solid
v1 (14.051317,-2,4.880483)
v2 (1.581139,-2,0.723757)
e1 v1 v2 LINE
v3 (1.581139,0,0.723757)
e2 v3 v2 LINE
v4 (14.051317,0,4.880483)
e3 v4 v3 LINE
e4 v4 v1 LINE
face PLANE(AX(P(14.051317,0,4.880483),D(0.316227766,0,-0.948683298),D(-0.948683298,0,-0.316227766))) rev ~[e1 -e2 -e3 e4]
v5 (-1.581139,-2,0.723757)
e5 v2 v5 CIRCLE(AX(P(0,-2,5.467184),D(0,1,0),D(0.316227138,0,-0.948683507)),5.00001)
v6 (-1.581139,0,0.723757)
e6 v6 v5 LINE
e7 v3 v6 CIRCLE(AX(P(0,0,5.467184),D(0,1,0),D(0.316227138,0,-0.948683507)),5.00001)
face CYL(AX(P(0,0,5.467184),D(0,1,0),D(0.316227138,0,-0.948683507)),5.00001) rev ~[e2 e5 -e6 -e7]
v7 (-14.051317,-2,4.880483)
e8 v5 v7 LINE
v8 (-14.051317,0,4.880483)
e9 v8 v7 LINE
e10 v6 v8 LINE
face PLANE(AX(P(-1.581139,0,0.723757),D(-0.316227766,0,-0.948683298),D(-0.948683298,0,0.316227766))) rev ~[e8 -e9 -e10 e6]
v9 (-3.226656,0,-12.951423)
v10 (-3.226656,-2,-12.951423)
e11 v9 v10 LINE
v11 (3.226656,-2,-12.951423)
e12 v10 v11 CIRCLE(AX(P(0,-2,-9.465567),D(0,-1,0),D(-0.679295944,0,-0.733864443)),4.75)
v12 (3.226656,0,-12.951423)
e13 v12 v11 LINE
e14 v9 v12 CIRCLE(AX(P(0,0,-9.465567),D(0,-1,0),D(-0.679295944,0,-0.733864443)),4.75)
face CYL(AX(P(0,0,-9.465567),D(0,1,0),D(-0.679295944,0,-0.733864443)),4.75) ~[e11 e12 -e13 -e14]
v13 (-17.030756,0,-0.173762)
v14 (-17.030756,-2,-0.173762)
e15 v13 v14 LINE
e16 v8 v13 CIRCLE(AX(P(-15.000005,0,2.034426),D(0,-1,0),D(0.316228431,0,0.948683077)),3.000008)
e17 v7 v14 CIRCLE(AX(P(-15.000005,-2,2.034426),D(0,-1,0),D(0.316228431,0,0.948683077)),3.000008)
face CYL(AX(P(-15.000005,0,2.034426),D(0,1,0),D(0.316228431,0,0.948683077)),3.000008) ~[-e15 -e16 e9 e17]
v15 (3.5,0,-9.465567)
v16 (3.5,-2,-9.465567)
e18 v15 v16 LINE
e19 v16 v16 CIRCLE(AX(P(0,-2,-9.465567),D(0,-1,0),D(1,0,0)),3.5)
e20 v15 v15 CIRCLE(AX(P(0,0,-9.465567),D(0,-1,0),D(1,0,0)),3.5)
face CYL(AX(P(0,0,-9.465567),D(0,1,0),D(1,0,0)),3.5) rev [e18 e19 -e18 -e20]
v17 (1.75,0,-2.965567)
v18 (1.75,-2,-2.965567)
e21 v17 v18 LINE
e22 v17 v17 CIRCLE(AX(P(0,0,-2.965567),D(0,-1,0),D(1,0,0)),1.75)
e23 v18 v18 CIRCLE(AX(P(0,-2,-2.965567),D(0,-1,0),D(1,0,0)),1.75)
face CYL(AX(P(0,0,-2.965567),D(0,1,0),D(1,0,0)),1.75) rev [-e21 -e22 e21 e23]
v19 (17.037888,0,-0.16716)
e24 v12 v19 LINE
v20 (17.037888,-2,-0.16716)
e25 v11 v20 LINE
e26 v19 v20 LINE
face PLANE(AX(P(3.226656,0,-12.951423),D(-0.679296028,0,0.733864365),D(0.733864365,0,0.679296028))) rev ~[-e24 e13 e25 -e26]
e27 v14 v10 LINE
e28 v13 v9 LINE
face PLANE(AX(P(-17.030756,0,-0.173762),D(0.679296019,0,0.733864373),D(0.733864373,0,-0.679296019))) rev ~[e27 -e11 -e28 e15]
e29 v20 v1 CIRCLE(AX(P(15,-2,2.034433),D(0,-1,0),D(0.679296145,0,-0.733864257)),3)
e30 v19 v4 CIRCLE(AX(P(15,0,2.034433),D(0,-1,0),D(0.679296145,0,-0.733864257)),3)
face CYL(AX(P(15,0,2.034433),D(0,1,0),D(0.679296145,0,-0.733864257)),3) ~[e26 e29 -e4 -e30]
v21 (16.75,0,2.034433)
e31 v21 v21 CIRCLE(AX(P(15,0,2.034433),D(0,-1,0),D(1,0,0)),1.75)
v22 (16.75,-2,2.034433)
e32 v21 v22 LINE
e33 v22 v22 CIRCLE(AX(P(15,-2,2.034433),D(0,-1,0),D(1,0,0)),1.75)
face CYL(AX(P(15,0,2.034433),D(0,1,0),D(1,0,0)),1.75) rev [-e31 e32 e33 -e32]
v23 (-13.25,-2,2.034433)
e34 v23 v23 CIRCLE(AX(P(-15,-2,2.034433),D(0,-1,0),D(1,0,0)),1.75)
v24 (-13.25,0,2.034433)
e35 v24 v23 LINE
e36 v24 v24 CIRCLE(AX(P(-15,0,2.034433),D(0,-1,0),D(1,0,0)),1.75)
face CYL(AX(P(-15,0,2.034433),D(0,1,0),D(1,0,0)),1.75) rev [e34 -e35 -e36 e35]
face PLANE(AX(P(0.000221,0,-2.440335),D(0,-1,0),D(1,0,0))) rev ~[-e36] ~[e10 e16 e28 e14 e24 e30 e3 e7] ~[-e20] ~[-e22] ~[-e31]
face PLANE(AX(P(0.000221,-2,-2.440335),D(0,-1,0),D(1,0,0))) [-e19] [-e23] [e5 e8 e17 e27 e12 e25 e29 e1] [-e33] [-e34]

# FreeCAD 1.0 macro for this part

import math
import FreeCAD as App
import Part
import Sketcher

doc = App.newDocument("Part")
body = doc.addObject("PartDesign::Body", "Body")

sketch1 = body.newObject("Sketcher::SketchObject", "Sketch")
sketch1.AttachmentSupport = (doc.getObject("XZ_Plane"), [""])
sketch1.MapMode = "FlatFace"
sketch1.addGeometry([
    Part.LineSegment(App.Vector(3.2, -13, 0), App.Vector(17, -0.2, 0)),
    Part.ArcOfCircle(Part.Circle(App.Vector(15, 2, 0), App.Vector(0, 0, 1), 3), math.radians(-47), math.radians(108)),
    Part.LineSegment(App.Vector(14.1, 4.9, 0), App.Vector(1.6, 0.7, 0)),
    Part.ArcOfCircle(Part.Circle(App.Vector(0, 5.5, 0), App.Vector(0, 0, 1), 5), math.radians(-108), math.radians(-72)),
    Part.LineSegment(App.Vector(-1.6, 0.7, 0), App.Vector(-14.1, 4.9, 0)),
    Part.ArcOfCircle(Part.Circle(App.Vector(-15, 2, 0), App.Vector(0, 0, 1), 3), math.radians(72), math.radians(227)),
    Part.LineSegment(App.Vector(-17, -0.2, 0), App.Vector(-3.2, -13, 0)),
    Part.ArcOfCircle(Part.Circle(App.Vector(0, -9.5, 0), App.Vector(0, 0, 1), 4.8), math.radians(-133), math.radians(-47)),
    Part.Circle(App.Vector(0, -9.5, 0), App.Vector(0, 0, 1), 3.5),
    Part.Circle(App.Vector(-15, 2, 0), App.Vector(0, 0, 1), 1.8),
    Part.Circle(App.Vector(0, -3, 0), App.Vector(0, 0, 1), 1.8),
    Part.Circle(App.Vector(15, 2, 0), App.Vector(0, 0, 1), 1.8),
], False)
sketch1.addConstraint([
    Sketcher.Constraint("Tangent", 0, 2, 1, 1),
    Sketcher.Constraint("Tangent", 1, 2, 2, 1),
    Sketcher.Constraint("Tangent", 2, 2, 3, 2),
    Sketcher.Constraint("Tangent", 3, 1, 4, 1),
    Sketcher.Constraint("Tangent", 4, 2, 5, 1),
    Sketcher.Constraint("Coincident", 5, 2, 6, 1),
    Sketcher.Constraint("Tangent", 6, 2, 7, 1),
    Sketcher.Constraint("Tangent", 7, 2, 0, 1),
    Sketcher.Constraint("Coincident", 8, 3, 7, 3),
    Sketcher.Constraint("Coincident", 9, 3, 5, 3),
    Sketcher.Constraint("Coincident", 11, 3, 1, 3),
    Sketcher.Constraint("Equal", 9, 10),
    Sketcher.Constraint("Equal", 10, 11),
    Sketcher.Constraint("Symmetric", 1, 3, 5, 3, -2),
    Sketcher.Constraint("Symmetric", 2, 2, 3, 1, -2),
    Sketcher.Constraint("PointOnObject", 7, 3, -2),
    Sketcher.Constraint("PointOnObject", 10, 3, -2),
    Sketcher.Constraint("Diameter", 8, 7.0),
    Sketcher.Constraint("Radius", 1, 3.0),
    Sketcher.Constraint("Diameter", 9, 3.5),
    Sketcher.Constraint("Radius", 7, 4.75),
    Sketcher.Constraint("DistanceX", -1, 1, 1, 3, 15.0),
    Sketcher.Constraint("DistanceY", 10, 3, 1, 3, 5.0),
    Sketcher.Constraint("DistanceY", 7, 3, 1, 3, 11.499999),
    Sketcher.Constraint("Radius", 3, 5.00001),
    Sketcher.Constraint("DistanceY", 1, 2, 3, 3, 0.586701),
    Sketcher.Constraint("Distance", 6, 18.810151),
    Sketcher.Constraint("DistanceY", 0, 2, -1, 1, 0.16716),
])
pad1 = body.newObject("PartDesign::Pad", "Pad")
pad1.Profile = sketch1
pad1.Length = 2

doc.recompute()
